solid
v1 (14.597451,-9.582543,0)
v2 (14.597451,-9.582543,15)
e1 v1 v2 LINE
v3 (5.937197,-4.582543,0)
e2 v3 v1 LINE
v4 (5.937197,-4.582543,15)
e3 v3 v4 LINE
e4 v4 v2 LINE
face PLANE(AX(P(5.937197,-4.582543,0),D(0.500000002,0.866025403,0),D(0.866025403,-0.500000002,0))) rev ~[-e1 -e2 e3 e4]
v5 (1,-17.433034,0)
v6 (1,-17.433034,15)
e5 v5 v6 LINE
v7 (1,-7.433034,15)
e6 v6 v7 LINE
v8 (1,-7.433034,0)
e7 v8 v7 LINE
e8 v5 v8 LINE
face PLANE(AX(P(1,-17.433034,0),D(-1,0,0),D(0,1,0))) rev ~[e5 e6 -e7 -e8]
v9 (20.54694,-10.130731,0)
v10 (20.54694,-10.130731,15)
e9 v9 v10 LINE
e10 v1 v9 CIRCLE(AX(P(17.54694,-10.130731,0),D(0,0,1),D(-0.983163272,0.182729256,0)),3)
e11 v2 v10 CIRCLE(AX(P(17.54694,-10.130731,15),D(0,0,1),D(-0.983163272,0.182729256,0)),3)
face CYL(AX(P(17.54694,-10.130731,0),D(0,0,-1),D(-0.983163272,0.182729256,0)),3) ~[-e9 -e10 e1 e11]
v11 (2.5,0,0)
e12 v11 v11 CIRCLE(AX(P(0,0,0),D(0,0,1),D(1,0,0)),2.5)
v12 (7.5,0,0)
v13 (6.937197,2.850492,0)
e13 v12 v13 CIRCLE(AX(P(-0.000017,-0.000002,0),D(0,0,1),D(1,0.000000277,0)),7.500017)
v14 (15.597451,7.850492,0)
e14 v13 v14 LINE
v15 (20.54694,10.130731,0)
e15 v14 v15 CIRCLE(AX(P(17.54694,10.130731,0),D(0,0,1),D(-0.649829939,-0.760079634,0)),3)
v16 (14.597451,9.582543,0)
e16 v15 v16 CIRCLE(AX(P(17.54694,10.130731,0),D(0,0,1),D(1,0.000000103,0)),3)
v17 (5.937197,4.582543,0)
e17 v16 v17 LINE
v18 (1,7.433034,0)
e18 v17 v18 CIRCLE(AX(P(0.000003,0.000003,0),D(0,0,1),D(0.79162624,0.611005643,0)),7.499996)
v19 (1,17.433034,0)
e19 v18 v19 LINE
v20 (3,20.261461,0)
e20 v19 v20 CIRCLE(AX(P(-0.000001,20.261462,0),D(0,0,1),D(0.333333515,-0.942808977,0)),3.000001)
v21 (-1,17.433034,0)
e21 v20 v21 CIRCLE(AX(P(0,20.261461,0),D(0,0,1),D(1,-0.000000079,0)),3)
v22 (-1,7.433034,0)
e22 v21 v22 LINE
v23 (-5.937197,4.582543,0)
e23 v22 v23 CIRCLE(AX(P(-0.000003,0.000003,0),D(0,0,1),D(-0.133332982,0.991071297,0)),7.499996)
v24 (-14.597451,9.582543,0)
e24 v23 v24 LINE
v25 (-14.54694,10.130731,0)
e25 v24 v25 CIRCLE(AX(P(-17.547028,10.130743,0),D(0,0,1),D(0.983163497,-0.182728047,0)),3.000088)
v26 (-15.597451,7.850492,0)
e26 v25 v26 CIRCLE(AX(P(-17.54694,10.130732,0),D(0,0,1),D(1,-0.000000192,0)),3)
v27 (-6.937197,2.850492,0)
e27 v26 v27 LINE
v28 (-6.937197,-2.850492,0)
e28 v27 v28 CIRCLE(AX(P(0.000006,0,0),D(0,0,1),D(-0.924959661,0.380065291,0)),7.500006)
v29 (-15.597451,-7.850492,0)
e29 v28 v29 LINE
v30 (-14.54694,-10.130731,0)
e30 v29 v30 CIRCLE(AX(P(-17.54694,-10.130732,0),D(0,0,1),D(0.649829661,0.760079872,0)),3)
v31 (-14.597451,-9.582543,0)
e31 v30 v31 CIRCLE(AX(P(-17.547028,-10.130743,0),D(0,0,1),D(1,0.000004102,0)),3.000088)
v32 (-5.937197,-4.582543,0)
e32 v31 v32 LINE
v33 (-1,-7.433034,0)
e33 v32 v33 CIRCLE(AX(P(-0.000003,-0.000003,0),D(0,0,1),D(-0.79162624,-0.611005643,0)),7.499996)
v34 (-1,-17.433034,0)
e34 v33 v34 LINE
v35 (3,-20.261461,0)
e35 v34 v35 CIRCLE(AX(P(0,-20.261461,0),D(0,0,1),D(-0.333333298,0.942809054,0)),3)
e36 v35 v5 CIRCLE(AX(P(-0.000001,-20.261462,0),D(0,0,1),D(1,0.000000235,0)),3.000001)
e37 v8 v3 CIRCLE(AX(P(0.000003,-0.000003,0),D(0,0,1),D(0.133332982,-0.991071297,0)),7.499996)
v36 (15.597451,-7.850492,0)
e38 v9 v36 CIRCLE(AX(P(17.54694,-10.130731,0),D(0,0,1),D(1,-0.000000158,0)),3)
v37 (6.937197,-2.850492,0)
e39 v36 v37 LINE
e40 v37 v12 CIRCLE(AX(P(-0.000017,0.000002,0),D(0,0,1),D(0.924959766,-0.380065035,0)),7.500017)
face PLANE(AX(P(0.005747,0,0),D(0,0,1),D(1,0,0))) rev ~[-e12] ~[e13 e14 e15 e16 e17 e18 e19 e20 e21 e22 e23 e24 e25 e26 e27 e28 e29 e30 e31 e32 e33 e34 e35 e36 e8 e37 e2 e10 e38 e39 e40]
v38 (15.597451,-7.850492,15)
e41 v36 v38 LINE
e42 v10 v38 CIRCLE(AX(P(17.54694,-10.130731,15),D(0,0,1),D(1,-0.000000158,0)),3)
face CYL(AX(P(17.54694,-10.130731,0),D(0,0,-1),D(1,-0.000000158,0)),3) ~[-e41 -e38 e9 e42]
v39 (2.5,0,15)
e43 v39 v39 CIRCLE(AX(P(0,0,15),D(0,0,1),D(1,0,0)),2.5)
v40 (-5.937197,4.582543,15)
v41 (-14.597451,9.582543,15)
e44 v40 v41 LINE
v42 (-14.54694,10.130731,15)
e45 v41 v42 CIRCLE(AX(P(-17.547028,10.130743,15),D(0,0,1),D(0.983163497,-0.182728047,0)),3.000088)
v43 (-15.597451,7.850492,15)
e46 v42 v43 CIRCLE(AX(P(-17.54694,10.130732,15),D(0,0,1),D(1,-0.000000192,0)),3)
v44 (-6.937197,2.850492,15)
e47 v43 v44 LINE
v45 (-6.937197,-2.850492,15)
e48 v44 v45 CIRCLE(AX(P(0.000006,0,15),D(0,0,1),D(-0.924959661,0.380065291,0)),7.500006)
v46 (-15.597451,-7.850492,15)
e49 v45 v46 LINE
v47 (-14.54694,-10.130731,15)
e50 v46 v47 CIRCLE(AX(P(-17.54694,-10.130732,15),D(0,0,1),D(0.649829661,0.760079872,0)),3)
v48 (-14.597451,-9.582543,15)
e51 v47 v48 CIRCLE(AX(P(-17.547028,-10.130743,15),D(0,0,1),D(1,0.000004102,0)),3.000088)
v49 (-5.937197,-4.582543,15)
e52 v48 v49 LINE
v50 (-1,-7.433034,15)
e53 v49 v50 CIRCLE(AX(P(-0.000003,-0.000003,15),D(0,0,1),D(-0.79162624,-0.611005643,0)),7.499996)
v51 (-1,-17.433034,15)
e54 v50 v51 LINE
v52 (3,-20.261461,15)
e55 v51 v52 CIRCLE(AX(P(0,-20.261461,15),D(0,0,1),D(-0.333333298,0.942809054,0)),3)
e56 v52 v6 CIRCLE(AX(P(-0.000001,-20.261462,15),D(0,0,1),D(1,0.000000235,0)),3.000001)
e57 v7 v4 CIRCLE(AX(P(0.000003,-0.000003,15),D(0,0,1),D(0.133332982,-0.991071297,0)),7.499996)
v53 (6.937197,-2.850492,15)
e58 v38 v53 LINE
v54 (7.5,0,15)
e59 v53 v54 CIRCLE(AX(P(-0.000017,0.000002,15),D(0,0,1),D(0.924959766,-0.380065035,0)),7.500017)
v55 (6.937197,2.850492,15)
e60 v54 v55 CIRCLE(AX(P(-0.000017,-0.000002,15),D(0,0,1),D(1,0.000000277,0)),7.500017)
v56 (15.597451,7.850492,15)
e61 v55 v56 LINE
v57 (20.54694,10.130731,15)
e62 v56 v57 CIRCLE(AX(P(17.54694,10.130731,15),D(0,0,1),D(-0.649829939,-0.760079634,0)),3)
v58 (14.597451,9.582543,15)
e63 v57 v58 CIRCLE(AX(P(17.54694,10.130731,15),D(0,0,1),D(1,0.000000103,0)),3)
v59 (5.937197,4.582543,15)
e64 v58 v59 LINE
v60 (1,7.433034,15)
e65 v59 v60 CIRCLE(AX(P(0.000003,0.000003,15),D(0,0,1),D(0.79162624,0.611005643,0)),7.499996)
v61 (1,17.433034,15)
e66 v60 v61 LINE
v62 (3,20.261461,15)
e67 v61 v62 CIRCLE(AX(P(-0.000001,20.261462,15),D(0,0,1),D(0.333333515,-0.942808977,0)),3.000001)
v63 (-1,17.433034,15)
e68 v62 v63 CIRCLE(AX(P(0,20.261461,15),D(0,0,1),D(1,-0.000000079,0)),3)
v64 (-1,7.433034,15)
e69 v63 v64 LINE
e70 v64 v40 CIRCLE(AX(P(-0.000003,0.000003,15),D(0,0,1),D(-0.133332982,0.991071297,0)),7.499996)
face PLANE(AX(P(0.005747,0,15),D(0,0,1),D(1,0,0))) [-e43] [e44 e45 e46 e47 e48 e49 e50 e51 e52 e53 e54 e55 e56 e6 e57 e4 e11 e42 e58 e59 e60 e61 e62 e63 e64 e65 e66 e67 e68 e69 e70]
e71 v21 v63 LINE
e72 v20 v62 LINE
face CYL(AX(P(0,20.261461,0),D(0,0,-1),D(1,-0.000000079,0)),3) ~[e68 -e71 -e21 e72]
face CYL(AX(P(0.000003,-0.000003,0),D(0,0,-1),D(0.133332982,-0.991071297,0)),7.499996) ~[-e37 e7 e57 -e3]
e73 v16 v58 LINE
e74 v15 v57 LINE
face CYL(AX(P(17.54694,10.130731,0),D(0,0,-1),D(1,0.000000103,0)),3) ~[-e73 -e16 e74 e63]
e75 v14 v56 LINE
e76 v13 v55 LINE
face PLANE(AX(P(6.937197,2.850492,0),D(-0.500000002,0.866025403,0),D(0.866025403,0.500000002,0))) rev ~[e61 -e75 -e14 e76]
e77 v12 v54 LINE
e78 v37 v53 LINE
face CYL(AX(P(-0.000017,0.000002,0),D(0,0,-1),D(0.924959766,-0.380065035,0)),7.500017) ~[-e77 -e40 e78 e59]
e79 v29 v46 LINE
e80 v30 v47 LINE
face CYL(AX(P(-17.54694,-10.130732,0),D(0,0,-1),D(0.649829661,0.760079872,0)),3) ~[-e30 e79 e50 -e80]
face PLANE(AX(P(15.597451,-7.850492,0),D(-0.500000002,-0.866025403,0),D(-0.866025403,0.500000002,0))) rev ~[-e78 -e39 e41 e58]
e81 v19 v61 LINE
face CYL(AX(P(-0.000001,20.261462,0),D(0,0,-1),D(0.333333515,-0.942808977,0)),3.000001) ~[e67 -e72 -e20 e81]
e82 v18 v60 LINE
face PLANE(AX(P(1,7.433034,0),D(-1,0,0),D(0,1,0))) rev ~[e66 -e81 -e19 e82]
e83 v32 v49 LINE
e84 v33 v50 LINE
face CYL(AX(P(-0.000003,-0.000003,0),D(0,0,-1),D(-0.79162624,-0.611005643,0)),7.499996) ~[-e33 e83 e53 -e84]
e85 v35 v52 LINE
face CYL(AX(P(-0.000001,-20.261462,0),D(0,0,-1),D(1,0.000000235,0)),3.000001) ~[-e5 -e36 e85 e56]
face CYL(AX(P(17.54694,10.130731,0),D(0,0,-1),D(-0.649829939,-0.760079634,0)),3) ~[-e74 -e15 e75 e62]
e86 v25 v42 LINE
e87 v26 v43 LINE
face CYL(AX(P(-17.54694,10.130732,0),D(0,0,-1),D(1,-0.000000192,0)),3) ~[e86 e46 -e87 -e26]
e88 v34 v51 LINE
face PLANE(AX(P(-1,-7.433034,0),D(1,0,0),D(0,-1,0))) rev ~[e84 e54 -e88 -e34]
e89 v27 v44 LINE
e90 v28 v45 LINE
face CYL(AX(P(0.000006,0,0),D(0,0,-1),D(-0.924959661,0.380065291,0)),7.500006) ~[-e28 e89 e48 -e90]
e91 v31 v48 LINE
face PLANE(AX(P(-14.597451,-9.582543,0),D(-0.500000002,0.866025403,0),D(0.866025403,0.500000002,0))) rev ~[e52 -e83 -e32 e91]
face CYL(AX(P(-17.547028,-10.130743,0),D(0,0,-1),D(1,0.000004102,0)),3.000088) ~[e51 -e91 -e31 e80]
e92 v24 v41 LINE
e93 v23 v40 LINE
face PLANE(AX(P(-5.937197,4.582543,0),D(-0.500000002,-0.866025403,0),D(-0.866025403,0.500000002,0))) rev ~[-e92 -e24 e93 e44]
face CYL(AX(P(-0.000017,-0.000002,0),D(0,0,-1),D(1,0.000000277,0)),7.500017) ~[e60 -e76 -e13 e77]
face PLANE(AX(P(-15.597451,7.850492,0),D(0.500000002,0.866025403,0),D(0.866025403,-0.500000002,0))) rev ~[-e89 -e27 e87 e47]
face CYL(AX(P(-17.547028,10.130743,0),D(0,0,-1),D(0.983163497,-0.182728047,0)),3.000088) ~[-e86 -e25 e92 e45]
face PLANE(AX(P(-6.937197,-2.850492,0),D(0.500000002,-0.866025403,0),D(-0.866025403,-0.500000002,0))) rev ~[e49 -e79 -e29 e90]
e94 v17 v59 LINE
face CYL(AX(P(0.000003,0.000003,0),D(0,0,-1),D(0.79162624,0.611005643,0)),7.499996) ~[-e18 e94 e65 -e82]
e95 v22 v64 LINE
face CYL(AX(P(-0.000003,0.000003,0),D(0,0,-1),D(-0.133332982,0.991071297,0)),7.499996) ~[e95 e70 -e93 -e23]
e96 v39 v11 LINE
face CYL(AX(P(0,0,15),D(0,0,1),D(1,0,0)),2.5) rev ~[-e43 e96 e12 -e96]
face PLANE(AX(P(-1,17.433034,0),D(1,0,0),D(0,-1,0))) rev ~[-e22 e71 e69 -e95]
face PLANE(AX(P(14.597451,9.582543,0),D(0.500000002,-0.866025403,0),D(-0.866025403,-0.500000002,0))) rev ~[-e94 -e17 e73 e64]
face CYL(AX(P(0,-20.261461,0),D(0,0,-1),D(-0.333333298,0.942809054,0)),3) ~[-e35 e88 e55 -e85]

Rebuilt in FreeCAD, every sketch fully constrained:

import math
import FreeCAD as App
import Part
import Sketcher
from FreeCAD import Vector
Q = App.Units.Quantity

doc = App.newDocument("Part")
body = doc.addObject("PartDesign::Body", "Body")

# Sketch on XY plane
sketch1 = body.newObject("Sketcher::SketchObject", "Sketch")
sketch1.AttachmentSupport = (doc.getObject("XY_Plane"), [""])
sketch1.MapMode = "FlatFace"
sketch1.addGeometry([
    Part.ArcOfCircle(Part.Circle(Vector(0, 0, 0), Vector(0, 0, 1), 7.5), math.radians(-22), math.radians(0)),  # 0
    Part.ArcOfCircle(Part.Circle(Vector(0, 0, 0), Vector(0, 0, 1), 7.5), math.radians(0), math.radians(22)),  # 1
    Part.LineSegment(Vector(6.9, 2.9, 0), Vector(15.6, 7.9, 0)),  # 2
    Part.ArcOfCircle(Part.Circle(Vector(17.5, 10.1, 0), Vector(0, 0, 1), 3), math.radians(-131), math.radians(0)),  # 3
    Part.ArcOfCircle(Part.Circle(Vector(17.5, 10.1, 0), Vector(0, 0, 1), 3), math.radians(0), math.radians(191)),  # 4
    Part.LineSegment(Vector(14.6, 9.6, 0), Vector(5.9, 4.6, 0)),  # 5
    Part.ArcOfCircle(Part.Circle(Vector(0, 0, 0), Vector(0, 0, 1), 7.5), math.radians(38), math.radians(82)),  # 6
    Part.LineSegment(Vector(1, 7.4, 0), Vector(1, 17.4, 0)),  # 7
    Part.ArcOfCircle(Part.Circle(Vector(0, 20.3, 0), Vector(0, 0, 1), 3), math.radians(-71), math.radians(0)),  # 8
    Part.ArcOfCircle(Part.Circle(Vector(0, 20.3, 0), Vector(0, 0, 1), 3), math.radians(0), math.radians(251)),  # 9
    Part.LineSegment(Vector(-1, 17.4, 0), Vector(-1, 7.4, 0)),  # 10
    Part.ArcOfCircle(Part.Circle(Vector(0, 0, 0), Vector(0, 0, 1), 7.5), math.radians(98), math.radians(142)),  # 11
    Part.LineSegment(Vector(-5.9, 4.6, 0), Vector(-14.6, 9.6, 0)),  # 12
    Part.ArcOfCircle(Part.Circle(Vector(-17.5, 10.1, 0), Vector(0, 0, 1), 3), math.radians(-10.53), math.radians(0)),  # 13
    Part.ArcOfCircle(Part.Circle(Vector(-17.5, 10.1, 0), Vector(0, 0, 1), 3), math.radians(0), math.radians(311)),  # 14
    Part.LineSegment(Vector(-15.6, 7.9, 0), Vector(-6.9, 2.9, 0)),  # 15
    Part.ArcOfCircle(Part.Circle(Vector(0, 0, 0), Vector(0, 0, 1), 7.5), math.radians(158), math.radians(202)),  # 16
    Part.LineSegment(Vector(-6.9, -2.9, 0), Vector(-15.6, -7.9, 0)),  # 17
    Part.ArcOfCircle(Part.Circle(Vector(-17.5, -10.1, 0), Vector(0, 0, 1), 3), math.radians(49), math.radians(360)),  # 18
    Part.ArcOfCircle(Part.Circle(Vector(-17.5, -10.1, 0), Vector(0, 0, 1), 3), math.radians(0), math.radians(10.53)),  # 19
    Part.LineSegment(Vector(-14.6, -9.6, 0), Vector(-5.9, -4.6, 0)),  # 20
    Part.ArcOfCircle(Part.Circle(Vector(0, 0, 0), Vector(0, 0, 1), 7.5), math.radians(-142), math.radians(-98)),  # 21
    Part.LineSegment(Vector(-1, -7.4, 0), Vector(-1, -17.4, 0)),  # 22
    Part.ArcOfCircle(Part.Circle(Vector(0, -20.3, 0), Vector(0, 0, 1), 3), math.radians(109), math.radians(360)),  # 23
    Part.ArcOfCircle(Part.Circle(Vector(0, -20.3, 0), Vector(0, 0, 1), 3), math.radians(0), math.radians(71)),  # 24
    Part.LineSegment(Vector(1, -17.4, 0), Vector(1, -7.4, 0)),  # 25
    Part.ArcOfCircle(Part.Circle(Vector(0, 0, 0), Vector(0, 0, 1), 7.5), math.radians(-82), math.radians(-38)),  # 26
    Part.LineSegment(Vector(5.9, -4.6, 0), Vector(14.6, -9.6, 0)),  # 27
    Part.ArcOfCircle(Part.Circle(Vector(17.5, -10.1, 0), Vector(0, 0, 1), 3), math.radians(169), math.radians(360)),  # 28
    Part.ArcOfCircle(Part.Circle(Vector(17.5, -10.1, 0), Vector(0, 0, 1), 3), math.radians(0), math.radians(131)),  # 29
    Part.LineSegment(Vector(15.6, -7.9, 0), Vector(6.9, -2.9, 0)),  # 30
], False)
sketch1.addConstraint([
    Sketcher.Constraint("Tangent", 0, 2, 1, 1),
    Sketcher.Constraint("Coincident", 1, 2, 2, 1),
    Sketcher.Constraint("Coincident", 2, 2, 3, 1),
    Sketcher.Constraint("Tangent", 3, 2, 4, 1),
    Sketcher.Constraint("Coincident", 4, 2, 5, 1),
    Sketcher.Constraint("Coincident", 5, 2, 6, 1),
    Sketcher.Constraint("Coincident", 6, 2, 7, 1),
    Sketcher.Constraint("Coincident", 7, 2, 8, 1),
    Sketcher.Constraint("Tangent", 8, 2, 9, 1),
    Sketcher.Constraint("Coincident", 9, 2, 10, 1),
    Sketcher.Constraint("Coincident", 10, 2, 11, 1),
    Sketcher.Constraint("Coincident", 11, 2, 12, 1),
    Sketcher.Constraint("Coincident", 12, 2, 13, 1),
    Sketcher.Constraint("Coincident", 13, 2, 14, 1),
    Sketcher.Constraint("Coincident", 14, 2, 15, 1),
    Sketcher.Constraint("Coincident", 15, 2, 16, 1),
    Sketcher.Constraint("Coincident", 16, 2, 17, 1),
    Sketcher.Constraint("Coincident", 17, 2, 18, 1),
    Sketcher.Constraint("Coincident", 18, 2, 19, 1),
    Sketcher.Constraint("Coincident", 19, 2, 20, 1),
    Sketcher.Constraint("Coincident", 20, 2, 21, 1),
    Sketcher.Constraint("Coincident", 21, 2, 22, 1),
    Sketcher.Constraint("Coincident", 22, 2, 23, 1),
    Sketcher.Constraint("Tangent", 23, 2, 24, 1),
    Sketcher.Constraint("Coincident", 24, 2, 25, 1),
    Sketcher.Constraint("Coincident", 25, 2, 26, 1),
    Sketcher.Constraint("Coincident", 26, 2, 27, 1),
    Sketcher.Constraint("Coincident", 27, 2, 28, 1),
    Sketcher.Constraint("Tangent", 28, 2, 29, 1),
    Sketcher.Constraint("Coincident", 29, 2, 30, 1),
    Sketcher.Constraint("Coincident", 30, 2, 0, 1),
    Sketcher.Constraint("Vertical", 7),
    Sketcher.Constraint("Vertical", 10),
    Sketcher.Constraint("Vertical", 22),
    Sketcher.Constraint("Vertical", 25),
    Sketcher.Constraint("Coincident", 6, 3, -1, 1),
    Sketcher.Constraint("Coincident", 11, 3, -1, 1),
    Sketcher.Constraint("Coincident", 16, 3, -1, 1),
    Sketcher.Constraint("Coincident", 21, 3, -1, 1),
    Sketcher.Constraint("Coincident", 26, 3, -1, 1),
    Sketcher.Constraint("Equal", 0, 1),
    Sketcher.Constraint("Equal", 3, 4),
    Sketcher.Constraint("Equal", 4, 8),
    Sketcher.Constraint("Equal", 8, 9),
    Sketcher.Constraint("Equal", 6, 11),
    Sketcher.Constraint("Equal", 9, 14),
    Sketcher.Constraint("Equal", 14, 18),
    Sketcher.Constraint("Equal", 13, 19),
    Sketcher.Constraint("Equal", 11, 21),
    Sketcher.Constraint("Equal", 18, 23),
    Sketcher.Constraint("Equal", 23, 24),
    Sketcher.Constraint("Equal", 21, 26),
    Sketcher.Constraint("Equal", 24, 28),
    Sketcher.Constraint("Equal", 28, 29),
    Sketcher.Constraint("Symmetric", 3, 3, 18, 3, -1, 1),
    Sketcher.Constraint("Symmetric", 8, 3, 23, 3, -1, 1),
    Sketcher.Constraint("Symmetric", 14, 3, 28, 3, -1, 1),
    Sketcher.Constraint("Symmetric", 1, 2, 16, 2, -1, 1),
    Sketcher.Constraint("Symmetric", 4, 2, 19, 2, -1, 1),
    Sketcher.Constraint("Symmetric", 12, 2, 27, 2, -1, 1),
    Sketcher.Constraint("Symmetric", 15, 2, 30, 2, -1, 1),
    Sketcher.Constraint("Symmetric", 3, 3, 14, 3, -2),
    Sketcher.Constraint("Symmetric", 7, 2, 9, 2, -2),
    Sketcher.Constraint("PointOnObject", 0, 2, -1),
    Sketcher.Constraint("Parallel", 2, 5),
    Sketcher.Constraint("Parallel", 12, 15),
    Sketcher.Constraint("Parallel", 5, 17),
    Sketcher.Constraint("Parallel", 17, 20),
    Sketcher.Constraint("Parallel", 15, 27),
    Sketcher.Constraint("Parallel", 27, 30),
    Sketcher.Constraint("Horizontal", 14, 3, 3, 2),
    Sketcher.Constraint("Horizontal", 9, 3, 8, 2),
    Sketcher.Constraint("Horizontal", 5, 2, 11, 2),
    Sketcher.Constraint("Horizontal", 4, 2, 12, 2),
    Sketcher.Constraint("Horizontal", 3, 2, 13, 2),
    Sketcher.Constraint("Horizontal", 2, 2, 14, 2),
    Sketcher.Constraint("Horizontal", 29, 3, 18, 2),
    Sketcher.Constraint("Horizontal", 24, 3, 23, 2),
    Sketcher.Constraint("Horizontal", 22, 2, 24, 2),
    Sketcher.Constraint("Horizontal", 18, 2, 28, 2),
    Sketcher.Constraint("Vertical", 10, 2, 21, 2),
    Sketcher.Constraint("Equal", 2, 5),
    Sketcher.Constraint("Radius", 3, 3.0),
    Sketcher.Constraint("DistanceY", 7, 1, 7, 2, 10.0),
    Sketcher.Constraint("Angle", 2, Q("30 deg")),
    Sketcher.Constraint("Distance", 2, 10.0),
    Sketcher.Constraint("DistanceX", -1, 1, 6, 2, 1.0),
    Sketcher.Constraint("DistanceX", 4, 2, 2, 2, 1.0),
    Sketcher.Constraint("DistanceX", -1, 1, 0, 2, 7.5),
    Sketcher.Constraint("Radius", 13, 3.000088),
    Sketcher.Constraint("Radius", 0, 7.500017),
    Sketcher.Constraint("Radius", 6, 7.499996),
    Sketcher.Constraint("DistanceX", 11, 3, 1, 2, 6.9372),
])
pad1 = body.newObject("PartDesign::Pad", "Pad")
pad1.Profile = sketch1
pad1.Length = 15

# Sketch on XY plane
sketch2 = body.newObject("Sketcher::SketchObject", "Sketch001")
sketch2.AttachmentSupport = (doc.getObject("XY_Plane"), [""])
sketch2.MapMode = "FlatFace"
sketch2.AttachmentOffset = App.Placement(Vector(0, 0, 15), App.Rotation())
sketch2.addGeometry(Part.Circle(Vector(0, 0, 0), Vector(0, 0, 1), 2.5), False)
sketch2.addConstraint([
    Sketcher.Constraint("Coincident", 0, 3, -1, 1),
    Sketcher.Constraint("Diameter", 0, 5.0),
])
pocket1 = body.newObject("PartDesign::Pocket", "Pocket")
pocket1.Profile = sketch2
pocket1.Type = "ThroughAll"

doc.recompute()
